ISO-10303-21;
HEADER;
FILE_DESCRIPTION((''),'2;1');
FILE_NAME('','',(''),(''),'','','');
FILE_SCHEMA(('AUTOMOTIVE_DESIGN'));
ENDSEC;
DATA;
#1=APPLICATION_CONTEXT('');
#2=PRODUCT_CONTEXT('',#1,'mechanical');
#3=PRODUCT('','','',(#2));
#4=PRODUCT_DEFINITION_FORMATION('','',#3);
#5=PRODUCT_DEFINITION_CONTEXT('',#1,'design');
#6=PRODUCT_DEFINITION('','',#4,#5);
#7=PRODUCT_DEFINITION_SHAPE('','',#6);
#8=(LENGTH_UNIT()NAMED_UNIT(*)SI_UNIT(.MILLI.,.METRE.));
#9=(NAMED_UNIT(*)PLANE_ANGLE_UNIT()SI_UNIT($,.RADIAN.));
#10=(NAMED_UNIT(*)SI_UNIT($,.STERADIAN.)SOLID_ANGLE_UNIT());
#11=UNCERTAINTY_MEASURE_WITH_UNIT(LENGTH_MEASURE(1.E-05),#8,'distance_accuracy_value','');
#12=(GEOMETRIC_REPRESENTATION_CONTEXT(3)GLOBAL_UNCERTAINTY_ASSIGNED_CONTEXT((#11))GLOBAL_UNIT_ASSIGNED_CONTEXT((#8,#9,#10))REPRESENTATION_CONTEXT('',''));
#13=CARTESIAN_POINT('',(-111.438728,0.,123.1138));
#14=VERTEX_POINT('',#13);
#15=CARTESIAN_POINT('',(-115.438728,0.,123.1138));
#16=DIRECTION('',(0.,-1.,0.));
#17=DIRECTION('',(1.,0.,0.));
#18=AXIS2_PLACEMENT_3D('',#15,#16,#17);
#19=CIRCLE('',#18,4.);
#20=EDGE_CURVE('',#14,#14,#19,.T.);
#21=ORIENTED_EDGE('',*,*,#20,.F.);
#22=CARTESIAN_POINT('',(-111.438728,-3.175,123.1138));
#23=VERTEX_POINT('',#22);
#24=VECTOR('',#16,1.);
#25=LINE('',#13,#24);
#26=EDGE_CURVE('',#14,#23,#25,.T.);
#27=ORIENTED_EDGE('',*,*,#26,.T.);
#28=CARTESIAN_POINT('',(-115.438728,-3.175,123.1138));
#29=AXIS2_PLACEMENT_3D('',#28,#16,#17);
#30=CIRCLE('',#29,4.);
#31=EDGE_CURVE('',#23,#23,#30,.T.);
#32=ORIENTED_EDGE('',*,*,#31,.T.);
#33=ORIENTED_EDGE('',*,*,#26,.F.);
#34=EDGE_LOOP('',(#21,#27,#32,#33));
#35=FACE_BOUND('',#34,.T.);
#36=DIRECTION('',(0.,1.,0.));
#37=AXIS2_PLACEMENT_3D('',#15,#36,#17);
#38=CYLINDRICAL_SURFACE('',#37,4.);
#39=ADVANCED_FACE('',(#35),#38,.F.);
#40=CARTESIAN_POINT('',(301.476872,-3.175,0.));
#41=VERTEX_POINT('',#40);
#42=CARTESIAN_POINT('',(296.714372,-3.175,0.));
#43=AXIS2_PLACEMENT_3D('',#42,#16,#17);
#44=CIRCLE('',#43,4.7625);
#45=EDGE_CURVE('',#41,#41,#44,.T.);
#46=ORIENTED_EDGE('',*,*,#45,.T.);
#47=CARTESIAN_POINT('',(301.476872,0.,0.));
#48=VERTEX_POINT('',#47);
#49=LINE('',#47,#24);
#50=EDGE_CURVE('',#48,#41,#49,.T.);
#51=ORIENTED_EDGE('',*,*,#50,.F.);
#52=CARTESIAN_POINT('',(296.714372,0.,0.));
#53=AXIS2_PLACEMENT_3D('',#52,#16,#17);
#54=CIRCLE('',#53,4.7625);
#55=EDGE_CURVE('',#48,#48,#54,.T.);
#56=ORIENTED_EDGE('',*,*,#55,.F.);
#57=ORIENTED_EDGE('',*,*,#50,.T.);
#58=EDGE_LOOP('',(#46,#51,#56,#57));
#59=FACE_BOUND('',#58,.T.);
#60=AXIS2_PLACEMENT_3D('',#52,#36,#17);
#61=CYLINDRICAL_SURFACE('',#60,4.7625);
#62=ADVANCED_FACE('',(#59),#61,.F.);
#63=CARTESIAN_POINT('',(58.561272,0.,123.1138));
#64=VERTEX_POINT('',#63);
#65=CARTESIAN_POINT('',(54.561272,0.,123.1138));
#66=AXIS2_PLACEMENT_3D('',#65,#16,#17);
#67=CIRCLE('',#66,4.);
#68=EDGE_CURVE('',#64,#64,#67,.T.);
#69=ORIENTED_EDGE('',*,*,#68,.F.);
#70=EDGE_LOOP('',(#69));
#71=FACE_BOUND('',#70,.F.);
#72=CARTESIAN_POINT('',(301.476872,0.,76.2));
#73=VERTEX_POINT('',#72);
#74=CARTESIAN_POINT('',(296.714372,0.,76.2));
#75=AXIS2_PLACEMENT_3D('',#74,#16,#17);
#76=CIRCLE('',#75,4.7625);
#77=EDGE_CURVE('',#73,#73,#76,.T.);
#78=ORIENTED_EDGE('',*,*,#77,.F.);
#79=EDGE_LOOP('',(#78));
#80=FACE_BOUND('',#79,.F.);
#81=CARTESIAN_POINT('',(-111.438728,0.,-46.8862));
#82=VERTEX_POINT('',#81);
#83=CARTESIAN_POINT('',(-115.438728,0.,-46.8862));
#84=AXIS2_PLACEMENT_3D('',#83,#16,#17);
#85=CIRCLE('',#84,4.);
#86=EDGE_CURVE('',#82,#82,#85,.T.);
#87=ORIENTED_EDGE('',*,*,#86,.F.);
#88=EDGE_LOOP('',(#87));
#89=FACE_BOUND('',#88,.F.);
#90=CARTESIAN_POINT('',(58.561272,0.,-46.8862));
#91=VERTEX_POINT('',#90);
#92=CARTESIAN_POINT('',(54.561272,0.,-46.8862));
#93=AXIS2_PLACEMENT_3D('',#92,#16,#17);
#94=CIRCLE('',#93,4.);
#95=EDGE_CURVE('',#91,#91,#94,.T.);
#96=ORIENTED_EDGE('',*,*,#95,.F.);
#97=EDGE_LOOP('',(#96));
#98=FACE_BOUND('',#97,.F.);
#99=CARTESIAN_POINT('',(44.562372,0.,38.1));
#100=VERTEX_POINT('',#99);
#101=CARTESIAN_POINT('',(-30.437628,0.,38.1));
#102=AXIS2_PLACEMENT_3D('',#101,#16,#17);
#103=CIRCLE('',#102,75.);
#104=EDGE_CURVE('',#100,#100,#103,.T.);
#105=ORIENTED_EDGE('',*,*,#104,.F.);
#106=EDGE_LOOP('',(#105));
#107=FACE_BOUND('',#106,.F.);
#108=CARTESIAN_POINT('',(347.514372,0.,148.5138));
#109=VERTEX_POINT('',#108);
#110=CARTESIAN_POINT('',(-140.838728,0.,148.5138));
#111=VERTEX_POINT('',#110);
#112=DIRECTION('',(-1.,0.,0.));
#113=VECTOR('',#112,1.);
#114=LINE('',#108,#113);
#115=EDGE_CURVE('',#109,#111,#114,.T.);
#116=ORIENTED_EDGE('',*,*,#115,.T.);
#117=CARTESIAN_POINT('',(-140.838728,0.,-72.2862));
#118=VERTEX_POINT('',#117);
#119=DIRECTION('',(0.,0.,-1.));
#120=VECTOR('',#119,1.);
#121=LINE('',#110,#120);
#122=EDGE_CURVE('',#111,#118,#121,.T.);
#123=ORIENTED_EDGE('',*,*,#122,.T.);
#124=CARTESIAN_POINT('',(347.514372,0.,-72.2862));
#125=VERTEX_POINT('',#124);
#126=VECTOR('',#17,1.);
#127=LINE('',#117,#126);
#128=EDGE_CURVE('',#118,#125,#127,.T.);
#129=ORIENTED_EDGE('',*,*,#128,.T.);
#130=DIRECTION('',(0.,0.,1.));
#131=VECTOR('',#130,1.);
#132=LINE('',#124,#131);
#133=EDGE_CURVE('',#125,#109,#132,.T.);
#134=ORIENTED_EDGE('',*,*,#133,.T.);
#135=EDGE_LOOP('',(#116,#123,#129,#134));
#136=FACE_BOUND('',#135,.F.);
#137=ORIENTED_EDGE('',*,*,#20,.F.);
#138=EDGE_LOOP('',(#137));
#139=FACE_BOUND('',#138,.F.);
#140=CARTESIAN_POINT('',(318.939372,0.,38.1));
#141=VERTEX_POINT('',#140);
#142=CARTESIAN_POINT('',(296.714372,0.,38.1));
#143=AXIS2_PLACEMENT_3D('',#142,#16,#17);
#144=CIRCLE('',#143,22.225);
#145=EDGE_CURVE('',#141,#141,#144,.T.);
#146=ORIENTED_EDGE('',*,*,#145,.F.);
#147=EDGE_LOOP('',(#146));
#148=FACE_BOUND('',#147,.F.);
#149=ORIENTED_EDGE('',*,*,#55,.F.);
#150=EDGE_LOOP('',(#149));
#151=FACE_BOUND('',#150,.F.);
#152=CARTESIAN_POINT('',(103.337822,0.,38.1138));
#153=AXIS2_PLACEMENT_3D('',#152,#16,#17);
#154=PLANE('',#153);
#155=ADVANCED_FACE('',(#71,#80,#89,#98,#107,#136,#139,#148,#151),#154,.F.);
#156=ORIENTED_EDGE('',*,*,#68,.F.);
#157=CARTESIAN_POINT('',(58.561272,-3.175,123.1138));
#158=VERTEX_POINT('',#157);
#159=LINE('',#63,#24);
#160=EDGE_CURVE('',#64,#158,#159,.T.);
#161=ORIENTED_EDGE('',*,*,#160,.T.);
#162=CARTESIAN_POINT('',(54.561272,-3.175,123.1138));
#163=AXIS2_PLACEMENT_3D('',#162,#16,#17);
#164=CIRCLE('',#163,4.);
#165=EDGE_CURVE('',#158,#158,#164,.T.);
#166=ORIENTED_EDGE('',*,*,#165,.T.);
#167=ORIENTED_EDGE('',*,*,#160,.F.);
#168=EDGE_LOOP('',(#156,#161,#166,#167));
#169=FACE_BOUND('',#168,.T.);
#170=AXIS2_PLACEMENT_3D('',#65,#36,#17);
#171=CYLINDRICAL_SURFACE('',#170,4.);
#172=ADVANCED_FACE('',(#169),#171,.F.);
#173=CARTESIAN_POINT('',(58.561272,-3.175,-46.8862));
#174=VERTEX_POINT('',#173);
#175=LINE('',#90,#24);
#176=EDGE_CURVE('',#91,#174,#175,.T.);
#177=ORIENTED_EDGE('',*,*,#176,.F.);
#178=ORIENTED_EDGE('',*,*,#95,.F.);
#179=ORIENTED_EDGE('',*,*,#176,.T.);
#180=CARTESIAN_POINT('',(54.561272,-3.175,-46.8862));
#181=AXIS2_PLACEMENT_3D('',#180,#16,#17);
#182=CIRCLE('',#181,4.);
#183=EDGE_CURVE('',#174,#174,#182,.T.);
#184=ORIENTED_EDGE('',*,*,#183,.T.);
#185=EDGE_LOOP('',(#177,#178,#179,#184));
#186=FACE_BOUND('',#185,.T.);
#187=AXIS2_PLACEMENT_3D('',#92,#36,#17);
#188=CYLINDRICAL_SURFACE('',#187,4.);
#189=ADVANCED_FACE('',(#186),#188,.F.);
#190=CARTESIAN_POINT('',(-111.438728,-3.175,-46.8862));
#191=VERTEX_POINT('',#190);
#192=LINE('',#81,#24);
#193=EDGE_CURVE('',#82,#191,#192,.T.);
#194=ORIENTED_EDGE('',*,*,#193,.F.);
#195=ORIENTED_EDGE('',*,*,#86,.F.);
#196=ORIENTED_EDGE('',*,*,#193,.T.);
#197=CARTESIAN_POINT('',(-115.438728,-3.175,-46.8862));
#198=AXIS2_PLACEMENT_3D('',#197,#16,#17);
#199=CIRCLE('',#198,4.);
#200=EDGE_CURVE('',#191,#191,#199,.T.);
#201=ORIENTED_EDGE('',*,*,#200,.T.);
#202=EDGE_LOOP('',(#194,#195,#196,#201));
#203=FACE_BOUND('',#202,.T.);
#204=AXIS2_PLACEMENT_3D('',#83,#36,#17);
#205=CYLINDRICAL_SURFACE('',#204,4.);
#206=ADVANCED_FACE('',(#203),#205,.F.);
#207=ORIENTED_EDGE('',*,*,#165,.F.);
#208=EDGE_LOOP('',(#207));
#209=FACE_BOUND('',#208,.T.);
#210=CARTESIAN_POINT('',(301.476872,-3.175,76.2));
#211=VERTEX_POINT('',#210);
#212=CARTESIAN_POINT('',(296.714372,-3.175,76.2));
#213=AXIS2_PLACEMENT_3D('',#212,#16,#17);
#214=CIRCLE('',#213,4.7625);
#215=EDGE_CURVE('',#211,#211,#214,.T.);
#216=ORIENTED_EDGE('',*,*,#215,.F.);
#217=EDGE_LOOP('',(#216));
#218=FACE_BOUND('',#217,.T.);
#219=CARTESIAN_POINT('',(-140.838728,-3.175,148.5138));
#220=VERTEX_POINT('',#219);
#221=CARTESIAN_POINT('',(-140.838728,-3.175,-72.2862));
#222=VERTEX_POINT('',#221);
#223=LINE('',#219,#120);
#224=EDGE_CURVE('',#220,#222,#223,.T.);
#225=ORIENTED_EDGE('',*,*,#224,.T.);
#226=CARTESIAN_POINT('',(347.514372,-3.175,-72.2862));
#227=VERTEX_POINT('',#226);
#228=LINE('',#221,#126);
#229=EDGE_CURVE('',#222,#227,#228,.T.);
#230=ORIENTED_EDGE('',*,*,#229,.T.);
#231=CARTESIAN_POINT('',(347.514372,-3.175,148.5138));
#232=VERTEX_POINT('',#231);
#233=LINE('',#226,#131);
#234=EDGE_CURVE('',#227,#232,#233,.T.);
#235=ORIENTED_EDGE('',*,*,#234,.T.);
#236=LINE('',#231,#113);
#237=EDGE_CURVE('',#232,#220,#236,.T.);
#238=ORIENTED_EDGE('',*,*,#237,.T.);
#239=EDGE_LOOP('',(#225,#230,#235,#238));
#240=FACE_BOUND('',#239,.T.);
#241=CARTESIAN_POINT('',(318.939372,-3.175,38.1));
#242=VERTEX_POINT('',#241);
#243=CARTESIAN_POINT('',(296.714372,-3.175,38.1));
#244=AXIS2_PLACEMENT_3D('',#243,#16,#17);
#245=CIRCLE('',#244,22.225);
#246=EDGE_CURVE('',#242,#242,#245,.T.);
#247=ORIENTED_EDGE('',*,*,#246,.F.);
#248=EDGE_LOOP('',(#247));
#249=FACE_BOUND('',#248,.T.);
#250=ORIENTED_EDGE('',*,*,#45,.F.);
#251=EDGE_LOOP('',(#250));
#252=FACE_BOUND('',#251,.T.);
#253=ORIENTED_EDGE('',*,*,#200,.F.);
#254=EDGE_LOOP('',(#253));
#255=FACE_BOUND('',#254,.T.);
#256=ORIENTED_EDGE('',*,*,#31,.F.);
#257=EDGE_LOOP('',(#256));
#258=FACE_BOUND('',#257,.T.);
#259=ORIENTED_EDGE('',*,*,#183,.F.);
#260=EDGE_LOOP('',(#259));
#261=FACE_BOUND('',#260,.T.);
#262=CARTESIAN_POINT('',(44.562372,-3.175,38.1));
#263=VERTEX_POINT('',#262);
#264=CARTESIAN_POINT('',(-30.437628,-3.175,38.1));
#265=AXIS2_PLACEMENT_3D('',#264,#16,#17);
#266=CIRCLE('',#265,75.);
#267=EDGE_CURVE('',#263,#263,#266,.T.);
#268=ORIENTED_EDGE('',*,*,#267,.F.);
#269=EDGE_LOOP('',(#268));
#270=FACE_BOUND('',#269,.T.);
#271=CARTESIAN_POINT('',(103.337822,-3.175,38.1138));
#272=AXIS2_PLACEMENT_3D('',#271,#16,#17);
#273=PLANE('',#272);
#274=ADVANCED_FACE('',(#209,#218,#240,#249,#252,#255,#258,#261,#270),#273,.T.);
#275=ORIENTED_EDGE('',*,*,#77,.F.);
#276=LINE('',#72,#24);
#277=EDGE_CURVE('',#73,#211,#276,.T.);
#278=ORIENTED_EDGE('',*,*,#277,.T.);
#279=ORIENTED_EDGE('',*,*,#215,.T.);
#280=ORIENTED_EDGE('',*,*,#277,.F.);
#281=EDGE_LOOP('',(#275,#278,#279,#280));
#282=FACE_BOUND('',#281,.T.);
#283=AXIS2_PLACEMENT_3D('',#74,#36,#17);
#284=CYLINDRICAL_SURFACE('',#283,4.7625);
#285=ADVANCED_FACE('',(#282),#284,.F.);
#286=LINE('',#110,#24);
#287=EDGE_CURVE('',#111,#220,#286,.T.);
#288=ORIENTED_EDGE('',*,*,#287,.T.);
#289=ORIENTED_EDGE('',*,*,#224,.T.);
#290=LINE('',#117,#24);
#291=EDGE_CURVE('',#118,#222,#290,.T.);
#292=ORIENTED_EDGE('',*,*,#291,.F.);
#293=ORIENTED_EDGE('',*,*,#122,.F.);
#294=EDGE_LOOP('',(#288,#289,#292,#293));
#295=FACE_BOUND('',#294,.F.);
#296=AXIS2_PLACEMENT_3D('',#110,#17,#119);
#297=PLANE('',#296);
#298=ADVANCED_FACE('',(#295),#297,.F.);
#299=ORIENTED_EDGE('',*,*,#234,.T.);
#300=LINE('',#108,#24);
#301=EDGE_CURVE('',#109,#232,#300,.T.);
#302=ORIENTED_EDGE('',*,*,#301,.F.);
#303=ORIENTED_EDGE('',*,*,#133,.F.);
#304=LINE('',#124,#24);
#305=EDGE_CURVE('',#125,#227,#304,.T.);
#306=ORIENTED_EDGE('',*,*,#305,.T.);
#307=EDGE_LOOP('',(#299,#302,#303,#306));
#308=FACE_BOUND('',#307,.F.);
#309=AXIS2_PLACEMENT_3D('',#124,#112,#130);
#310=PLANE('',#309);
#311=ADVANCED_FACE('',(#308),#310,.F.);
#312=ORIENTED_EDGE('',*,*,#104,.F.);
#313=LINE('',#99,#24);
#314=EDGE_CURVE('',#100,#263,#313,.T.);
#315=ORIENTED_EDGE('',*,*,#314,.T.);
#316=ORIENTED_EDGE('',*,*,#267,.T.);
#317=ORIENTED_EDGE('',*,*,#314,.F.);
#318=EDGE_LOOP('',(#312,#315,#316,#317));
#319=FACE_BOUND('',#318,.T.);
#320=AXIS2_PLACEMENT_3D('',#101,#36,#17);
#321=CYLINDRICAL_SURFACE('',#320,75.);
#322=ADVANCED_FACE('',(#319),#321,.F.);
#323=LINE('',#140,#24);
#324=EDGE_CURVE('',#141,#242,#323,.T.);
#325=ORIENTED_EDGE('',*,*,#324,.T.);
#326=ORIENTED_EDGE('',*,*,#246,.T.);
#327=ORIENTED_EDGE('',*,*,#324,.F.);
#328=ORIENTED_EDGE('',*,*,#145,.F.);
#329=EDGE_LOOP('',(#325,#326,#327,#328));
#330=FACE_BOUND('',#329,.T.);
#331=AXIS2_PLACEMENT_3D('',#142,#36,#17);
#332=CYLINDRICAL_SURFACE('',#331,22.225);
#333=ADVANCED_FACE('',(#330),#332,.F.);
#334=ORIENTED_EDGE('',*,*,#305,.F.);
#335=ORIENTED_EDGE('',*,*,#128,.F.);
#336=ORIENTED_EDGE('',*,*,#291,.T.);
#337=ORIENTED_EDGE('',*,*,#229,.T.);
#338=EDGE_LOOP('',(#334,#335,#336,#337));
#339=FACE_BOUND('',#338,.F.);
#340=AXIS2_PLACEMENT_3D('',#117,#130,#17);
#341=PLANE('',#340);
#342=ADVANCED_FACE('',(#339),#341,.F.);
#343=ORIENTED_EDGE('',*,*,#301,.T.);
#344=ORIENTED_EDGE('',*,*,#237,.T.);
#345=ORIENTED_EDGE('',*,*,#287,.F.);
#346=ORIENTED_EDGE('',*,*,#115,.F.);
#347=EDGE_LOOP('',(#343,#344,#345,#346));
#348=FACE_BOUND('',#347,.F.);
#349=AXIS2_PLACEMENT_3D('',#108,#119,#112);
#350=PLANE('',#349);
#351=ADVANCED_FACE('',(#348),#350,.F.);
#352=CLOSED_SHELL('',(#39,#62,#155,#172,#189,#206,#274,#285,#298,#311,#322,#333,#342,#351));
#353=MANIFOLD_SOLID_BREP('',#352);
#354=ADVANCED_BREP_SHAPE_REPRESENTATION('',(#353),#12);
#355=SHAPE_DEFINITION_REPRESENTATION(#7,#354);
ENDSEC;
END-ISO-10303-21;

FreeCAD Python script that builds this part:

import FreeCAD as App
import Part
import Sketcher
from FreeCAD import Vector
Q = App.Units.Quantity

doc = App.newDocument("Part")
body = doc.addObject("PartDesign::Body", "Body")

# Sketch on XZ plane
sketch1 = doc.addObject("Sketcher::SketchObject", "Sketch")
body.addObject(sketch1)
sketch1.AttachmentSupport = (doc.XZ_Plane, [""])
sketch1.MapMode = "FlatFace"
sketch1.addGeometry([
    Part.LineSegment(Vector(-140.8, 148.5, 0), Vector(-140.8, -72.3, 0)),  # 0
    Part.LineSegment(Vector(-140.8, -72.3, 0), Vector(347.5, -72.3, 0)),  # 1
    Part.LineSegment(Vector(347.5, -72.3, 0), Vector(347.5, 148.5, 0)),  # 2
    Part.LineSegment(Vector(347.5, 148.5, 0), Vector(-140.8, 148.5, 0)),  # 3
    Part.Circle(Vector(-115.4, -46.9, 0), Vector(0, 0, 1), 4),  # 4
    Part.Circle(Vector(54.6, -46.9, 0), Vector(0, 0, 1), 4),  # 5
    Part.Circle(Vector(-30.4, 38.1, 0), Vector(0, 0, 1), 75),  # 6
    Part.Circle(Vector(296.7, 0, 0), Vector(0, 0, 1), 4.8),  # 7
    Part.Circle(Vector(296.7, 38.1, 0), Vector(0, 0, 1), 22.2),  # 8
    Part.Circle(Vector(-115.4, 123.1, 0), Vector(0, 0, 1), 4),  # 9
    Part.Circle(Vector(54.6, 123.1, 0), Vector(0, 0, 1), 4),  # 10
    Part.Circle(Vector(296.7, 76.2, 0), Vector(0, 0, 1), 4.8),  # 11
], False)
sketch1.addConstraint([
    Sketcher.Constraint("Coincident", 0, 2, 1, 1),
    Sketcher.Constraint("Coincident", 1, 2, 2, 1),
    Sketcher.Constraint("Coincident", 2, 2, 3, 1),
    Sketcher.Constraint("Coincident", 3, 2, 0, 1),
    Sketcher.Constraint("Vertical", 0),
    Sketcher.Constraint("Horizontal", 1),
    Sketcher.Constraint("Vertical", 2),
    Sketcher.Constraint("Horizontal", 3),
    Sketcher.Constraint("Equal", 4, 5),
    Sketcher.Constraint("Equal", 5, 9),
    Sketcher.Constraint("Equal", 9, 10),
    Sketcher.Constraint("Equal", 7, 11),
    Sketcher.Constraint("PointOnObject", 7, 3, -1),
    Sketcher.Constraint("Horizontal", 4, 3, 5, 3),
    Sketcher.Constraint("Horizontal", 6, 3, 8, 3),
    Sketcher.Constraint("Horizontal", 9, 3, 10, 3),
    Sketcher.Constraint("Vertical", 7, 3, 8, 3),
    Sketcher.Constraint("Vertical", 4, 3, 9, 3),
    Sketcher.Constraint("Vertical", 5, 3, 10, 3),
    Sketcher.Constraint("Vertical", 8, 3, 11, 3),
    Sketcher.Constraint("Diameter", 4, Q("8 mm")),
    Sketcher.Constraint("Diameter", 6, Q("150 mm")),
    Sketcher.Constraint("Diameter", 8, Q("44.45 mm")),
    Sketcher.Constraint("Diameter", 7, Q("9.525 mm")),
    Sketcher.Constraint("DistanceY", 0, 2, 0, 1, Q("220.8 mm")),
    Sketcher.Constraint("DistanceX", 4, 3, 5, 3, Q("170 mm")),
    Sketcher.Constraint("DistanceY", 4, 3, 9, 3, Q("170 mm")),
    Sketcher.Constraint("DistanceY", -1, 1, 6, 3, Q("38.1 mm")),
    Sketcher.Constraint("DistanceY", -1, 1, 11, 3, Q("76.2 mm")),
    Sketcher.Constraint("DistanceX", 0, 2, 4, 3, Q("25.4 mm")),
    Sketcher.Constraint("DistanceY", 0, 2, 4, 3, Q("25.4 mm")),
    Sketcher.Constraint("DistanceX", 7, 3, 1, 2, Q("50.8 mm")),
    Sketcher.Constraint("DistanceX", 1, 1, 1, 2, Q("488.3531 mm")),
    Sketcher.Constraint("DistanceX", 6, 3, 7, 3, Q("327.152 mm")),
    Sketcher.Constraint("DistanceY", 4, 3, -1, 1, Q("46.8862 mm")),
    Sketcher.Constraint("DistanceX", 6, 3, -1, 1, Q("30.437628 mm")),
])
pad1 = doc.addObject("PartDesign::Pad", "Pad")
body.addObject(pad1)
pad1.Profile = sketch1
pad1.Length = 3.175

doc.recompute()
